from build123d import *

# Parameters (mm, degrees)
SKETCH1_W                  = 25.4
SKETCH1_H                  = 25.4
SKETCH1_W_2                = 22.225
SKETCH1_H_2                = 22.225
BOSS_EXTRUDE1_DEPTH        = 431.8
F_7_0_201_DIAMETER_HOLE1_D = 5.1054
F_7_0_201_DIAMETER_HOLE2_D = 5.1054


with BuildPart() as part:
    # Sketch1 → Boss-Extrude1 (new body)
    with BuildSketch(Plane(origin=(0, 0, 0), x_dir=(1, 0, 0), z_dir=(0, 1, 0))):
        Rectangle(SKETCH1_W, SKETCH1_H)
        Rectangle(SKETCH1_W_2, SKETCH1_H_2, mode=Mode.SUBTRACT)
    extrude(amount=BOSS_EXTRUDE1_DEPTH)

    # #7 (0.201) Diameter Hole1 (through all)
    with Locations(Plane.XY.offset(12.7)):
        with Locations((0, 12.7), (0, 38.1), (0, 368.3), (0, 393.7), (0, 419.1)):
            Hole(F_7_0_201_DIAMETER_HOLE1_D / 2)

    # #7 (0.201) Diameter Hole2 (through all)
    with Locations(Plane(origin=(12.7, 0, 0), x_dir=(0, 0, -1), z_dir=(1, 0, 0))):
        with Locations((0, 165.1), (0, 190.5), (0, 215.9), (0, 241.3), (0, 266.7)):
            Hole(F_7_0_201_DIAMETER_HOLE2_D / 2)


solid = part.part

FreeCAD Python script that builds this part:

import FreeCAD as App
import Part
import Sketcher

V = App.Vector
Q = App.Units.Quantity

doc = App.newDocument("Part")
body = doc.addObject("PartDesign::Body", "Body")

# Sketch on XZ plane
sketch1 = doc.addObject("Sketcher::SketchObject", "Sketch")
body.addObject(sketch1)
sketch1.AttachmentSupport = (doc.XZ_Plane, [""])
sketch1.MapMode = "FlatFace"
sketch1.addGeometry(Part.LineSegment(V(-13, -13, 0), V(-13, 13, 0)), False)
sketch1.addGeometry(Part.LineSegment(V(-13, 13, 0), V(13, 13, 0)), False)
sketch1.addGeometry(Part.LineSegment(V(13, 13, 0), V(13, -13, 0)), False)
sketch1.addGeometry(Part.LineSegment(V(13, -13, 0), V(-13, -13, 0)), False)
sketch1.addGeometry(Part.LineSegment(V(11, 11, 0), V(-11, 11, 0)), False)
sketch1.addGeometry(Part.LineSegment(V(-11, 11, 0), V(-11, -11, 0)), False)
sketch1.addGeometry(Part.LineSegment(V(-11, -11, 0), V(11, -11, 0)), False)
sketch1.addGeometry(Part.LineSegment(V(11, -11, 0), V(11, 11, 0)), False)
sketch1.addConstraint(Sketcher.Constraint("Coincident", 0, 2, 1, 1))
sketch1.addConstraint(Sketcher.Constraint("Coincident", 1, 2, 2, 1))
sketch1.addConstraint(Sketcher.Constraint("Coincident", 2, 2, 3, 1))
sketch1.addConstraint(Sketcher.Constraint("Coincident", 3, 2, 0, 1))
sketch1.addConstraint(Sketcher.Constraint("Coincident", 4, 2, 5, 1))
sketch1.addConstraint(Sketcher.Constraint("Coincident", 5, 2, 6, 1))
sketch1.addConstraint(Sketcher.Constraint("Coincident", 6, 2, 7, 1))
sketch1.addConstraint(Sketcher.Constraint("Coincident", 7, 2, 4, 1))
sketch1.addConstraint(Sketcher.Constraint("Vertical", 0))
sketch1.addConstraint(Sketcher.Constraint("Horizontal", 1))
sketch1.addConstraint(Sketcher.Constraint("Vertical", 2))
sketch1.addConstraint(Sketcher.Constraint("Horizontal", 3))
sketch1.addConstraint(Sketcher.Constraint("Horizontal", 4))
sketch1.addConstraint(Sketcher.Constraint("Vertical", 5))
sketch1.addConstraint(Sketcher.Constraint("Horizontal", 6))
sketch1.addConstraint(Sketcher.Constraint("Vertical", 7))
sketch1.addConstraint(Sketcher.Constraint("Symmetric", 0, 2, 2, 2, -1, 1))
sketch1.addConstraint(Sketcher.Constraint("Symmetric", 4, 2, 6, 2, -1, 1))
sketch1.addConstraint(Sketcher.Constraint("Equal", 3, 0))
sketch1.addConstraint(Sketcher.Constraint("Equal", 6, 5))
sketch1.addConstraint(Sketcher.Constraint("DistanceX", 1, 1, 1, 2, Q("1 in")))
sketch1.addConstraint(Sketcher.Constraint("DistanceX", 4, 2, 4, 1, Q("0.875 in")))
pad1 = doc.addObject("PartDesign::Pad", "Pad")
body.addObject(pad1)
pad1.Profile = sketch1
pad1.Length = Q("17 in")
pad1.Reversed = True

# Sketch on XY plane
sketch2 = doc.addObject("Sketcher::SketchObject", "Sketch001")
body.addObject(sketch2)
sketch2.AttachmentSupport = (doc.XY_Plane, [""])
sketch2.MapMode = "FlatFace"
sketch2.AttachmentOffset = App.Placement(V(0, 0, 0.5 * 25.4), App.Rotation())
sketch2.addGeometry(Part.Circle(V(0, 12.7, 0), V(0, 0, 1), 2.6), False)
sketch2.addGeometry(Part.Circle(V(0, 38.1, 0), V(0, 0, 1), 2.6), False)
sketch2.addGeometry(Part.Circle(V(0, 368.3, 0), V(0, 0, 1), 2.6), False)
sketch2.addGeometry(Part.Circle(V(0, 393.7, 0), V(0, 0, 1), 2.6), False)
sketch2.addGeometry(Part.Circle(V(0, 419.1, 0), V(0, 0, 1), 2.6), False)
sketch2.addConstraint(Sketcher.Constraint("Equal", 0, 1))
sketch2.addConstraint(Sketcher.Constraint("Equal", 1, 2))
sketch2.addConstraint(Sketcher.Constraint("Equal", 2, 3))
sketch2.addConstraint(Sketcher.Constraint("Equal", 3, 4))
sketch2.addConstraint(Sketcher.Constraint("PointOnObject", 0, 3, -2))
sketch2.addConstraint(Sketcher.Constraint("PointOnObject", 1, 3, -2))
sketch2.addConstraint(Sketcher.Constraint("PointOnObject", 2, 3, -2))
sketch2.addConstraint(Sketcher.Constraint("PointOnObject", 3, 3, -2))
sketch2.addConstraint(Sketcher.Constraint("PointOnObject", 4, 3, -2))
sketch2.addConstraint(Sketcher.Constraint("Diameter", 0, Q("0.201 in")))
sketch2.addConstraint(Sketcher.Constraint("DistanceY", 0, 3, 1, 3, Q("1 in")))
sketch2.addConstraint(Sketcher.Constraint("DistanceY", 1, 3, 2, 3, Q("13 in")))
sketch2.addConstraint(Sketcher.Constraint("DistanceY", 2, 3, 3, 3, Q("1 in")))
sketch2.addConstraint(Sketcher.Constraint("DistanceY", 3, 3, 4, 3, Q("1 in")))
sketch2.addConstraint(Sketcher.Constraint("DistanceY", -1, 1, 0, 3, Q("0.5 in")))
doc.recompute()
hole = doc.addObject("PartDesign::Hole", "Hole")
body.addObject(hole)
hole.Profile = sketch2
hole.ThreadType = "None"
hole.Diameter = Q("0.201 in")
hole.DepthType = "ThroughAll"

# Sketch on YZ plane
sketch3 = doc.addObject("Sketcher::SketchObject", "Sketch002")
body.addObject(sketch3)
sketch3.AttachmentSupport = (doc.YZ_Plane, [""])
sketch3.MapMode = "FlatFace"
sketch3.AttachmentOffset = App.Placement(V(0, 0, 0.5 * 25.4), App.Rotation())
sketch3.addGeometry(Part.Circle(V(165.1, 0, 0), V(0, 0, 1), 2.6), False)
sketch3.addGeometry(Part.Circle(V(190.5, 0, 0), V(0, 0, 1), 2.6), False)
sketch3.addGeometry(Part.Circle(V(215.9, 0, 0), V(0, 0, 1), 2.6), False)
sketch3.addGeometry(Part.Circle(V(241.3, 0, 0), V(0, 0, 1), 2.6), False)
sketch3.addGeometry(Part.Circle(V(266.7, 0, 0), V(0, 0, 1), 2.6), False)
sketch3.addConstraint(Sketcher.Constraint("Equal", 0, 1))
sketch3.addConstraint(Sketcher.Constraint("Equal", 1, 2))
sketch3.addConstraint(Sketcher.Constraint("Equal", 2, 3))
sketch3.addConstraint(Sketcher.Constraint("Equal", 3, 4))
sketch3.addConstraint(Sketcher.Constraint("PointOnObject", 0, 3, -1))
sketch3.addConstraint(Sketcher.Constraint("PointOnObject", 1, 3, -1))
sketch3.addConstraint(Sketcher.Constraint("PointOnObject", 2, 3, -1))
sketch3.addConstraint(Sketcher.Constraint("PointOnObject", 3, 3, -1))
sketch3.addConstraint(Sketcher.Constraint("PointOnObject", 4, 3, -1))
sketch3.addConstraint(Sketcher.Constraint("Diameter", 0, Q("0.201 in")))
sketch3.addConstraint(Sketcher.Constraint("DistanceX", 0, 3, 1, 3, Q("1 in")))
sketch3.addConstraint(Sketcher.Constraint("DistanceX", 1, 3, 2, 3, Q("1 in")))
sketch3.addConstraint(Sketcher.Constraint("DistanceX", 2, 3, 3, 3, Q("1 in")))
sketch3.addConstraint(Sketcher.Constraint("DistanceX", 3, 3, 4, 3, Q("1 in")))
sketch3.addConstraint(Sketcher.Constraint("DistanceX", -1, 1, 0, 3, Q("6.5 in")))
doc.recompute()
hole2 = doc.addObject("PartDesign::Hole", "Hole001")
body.addObject(hole2)
hole2.Profile = sketch3
hole2.ThreadType = "None"
hole2.Diameter = Q("0.201 in")
hole2.DepthType = "ThroughAll"

doc.recompute()
